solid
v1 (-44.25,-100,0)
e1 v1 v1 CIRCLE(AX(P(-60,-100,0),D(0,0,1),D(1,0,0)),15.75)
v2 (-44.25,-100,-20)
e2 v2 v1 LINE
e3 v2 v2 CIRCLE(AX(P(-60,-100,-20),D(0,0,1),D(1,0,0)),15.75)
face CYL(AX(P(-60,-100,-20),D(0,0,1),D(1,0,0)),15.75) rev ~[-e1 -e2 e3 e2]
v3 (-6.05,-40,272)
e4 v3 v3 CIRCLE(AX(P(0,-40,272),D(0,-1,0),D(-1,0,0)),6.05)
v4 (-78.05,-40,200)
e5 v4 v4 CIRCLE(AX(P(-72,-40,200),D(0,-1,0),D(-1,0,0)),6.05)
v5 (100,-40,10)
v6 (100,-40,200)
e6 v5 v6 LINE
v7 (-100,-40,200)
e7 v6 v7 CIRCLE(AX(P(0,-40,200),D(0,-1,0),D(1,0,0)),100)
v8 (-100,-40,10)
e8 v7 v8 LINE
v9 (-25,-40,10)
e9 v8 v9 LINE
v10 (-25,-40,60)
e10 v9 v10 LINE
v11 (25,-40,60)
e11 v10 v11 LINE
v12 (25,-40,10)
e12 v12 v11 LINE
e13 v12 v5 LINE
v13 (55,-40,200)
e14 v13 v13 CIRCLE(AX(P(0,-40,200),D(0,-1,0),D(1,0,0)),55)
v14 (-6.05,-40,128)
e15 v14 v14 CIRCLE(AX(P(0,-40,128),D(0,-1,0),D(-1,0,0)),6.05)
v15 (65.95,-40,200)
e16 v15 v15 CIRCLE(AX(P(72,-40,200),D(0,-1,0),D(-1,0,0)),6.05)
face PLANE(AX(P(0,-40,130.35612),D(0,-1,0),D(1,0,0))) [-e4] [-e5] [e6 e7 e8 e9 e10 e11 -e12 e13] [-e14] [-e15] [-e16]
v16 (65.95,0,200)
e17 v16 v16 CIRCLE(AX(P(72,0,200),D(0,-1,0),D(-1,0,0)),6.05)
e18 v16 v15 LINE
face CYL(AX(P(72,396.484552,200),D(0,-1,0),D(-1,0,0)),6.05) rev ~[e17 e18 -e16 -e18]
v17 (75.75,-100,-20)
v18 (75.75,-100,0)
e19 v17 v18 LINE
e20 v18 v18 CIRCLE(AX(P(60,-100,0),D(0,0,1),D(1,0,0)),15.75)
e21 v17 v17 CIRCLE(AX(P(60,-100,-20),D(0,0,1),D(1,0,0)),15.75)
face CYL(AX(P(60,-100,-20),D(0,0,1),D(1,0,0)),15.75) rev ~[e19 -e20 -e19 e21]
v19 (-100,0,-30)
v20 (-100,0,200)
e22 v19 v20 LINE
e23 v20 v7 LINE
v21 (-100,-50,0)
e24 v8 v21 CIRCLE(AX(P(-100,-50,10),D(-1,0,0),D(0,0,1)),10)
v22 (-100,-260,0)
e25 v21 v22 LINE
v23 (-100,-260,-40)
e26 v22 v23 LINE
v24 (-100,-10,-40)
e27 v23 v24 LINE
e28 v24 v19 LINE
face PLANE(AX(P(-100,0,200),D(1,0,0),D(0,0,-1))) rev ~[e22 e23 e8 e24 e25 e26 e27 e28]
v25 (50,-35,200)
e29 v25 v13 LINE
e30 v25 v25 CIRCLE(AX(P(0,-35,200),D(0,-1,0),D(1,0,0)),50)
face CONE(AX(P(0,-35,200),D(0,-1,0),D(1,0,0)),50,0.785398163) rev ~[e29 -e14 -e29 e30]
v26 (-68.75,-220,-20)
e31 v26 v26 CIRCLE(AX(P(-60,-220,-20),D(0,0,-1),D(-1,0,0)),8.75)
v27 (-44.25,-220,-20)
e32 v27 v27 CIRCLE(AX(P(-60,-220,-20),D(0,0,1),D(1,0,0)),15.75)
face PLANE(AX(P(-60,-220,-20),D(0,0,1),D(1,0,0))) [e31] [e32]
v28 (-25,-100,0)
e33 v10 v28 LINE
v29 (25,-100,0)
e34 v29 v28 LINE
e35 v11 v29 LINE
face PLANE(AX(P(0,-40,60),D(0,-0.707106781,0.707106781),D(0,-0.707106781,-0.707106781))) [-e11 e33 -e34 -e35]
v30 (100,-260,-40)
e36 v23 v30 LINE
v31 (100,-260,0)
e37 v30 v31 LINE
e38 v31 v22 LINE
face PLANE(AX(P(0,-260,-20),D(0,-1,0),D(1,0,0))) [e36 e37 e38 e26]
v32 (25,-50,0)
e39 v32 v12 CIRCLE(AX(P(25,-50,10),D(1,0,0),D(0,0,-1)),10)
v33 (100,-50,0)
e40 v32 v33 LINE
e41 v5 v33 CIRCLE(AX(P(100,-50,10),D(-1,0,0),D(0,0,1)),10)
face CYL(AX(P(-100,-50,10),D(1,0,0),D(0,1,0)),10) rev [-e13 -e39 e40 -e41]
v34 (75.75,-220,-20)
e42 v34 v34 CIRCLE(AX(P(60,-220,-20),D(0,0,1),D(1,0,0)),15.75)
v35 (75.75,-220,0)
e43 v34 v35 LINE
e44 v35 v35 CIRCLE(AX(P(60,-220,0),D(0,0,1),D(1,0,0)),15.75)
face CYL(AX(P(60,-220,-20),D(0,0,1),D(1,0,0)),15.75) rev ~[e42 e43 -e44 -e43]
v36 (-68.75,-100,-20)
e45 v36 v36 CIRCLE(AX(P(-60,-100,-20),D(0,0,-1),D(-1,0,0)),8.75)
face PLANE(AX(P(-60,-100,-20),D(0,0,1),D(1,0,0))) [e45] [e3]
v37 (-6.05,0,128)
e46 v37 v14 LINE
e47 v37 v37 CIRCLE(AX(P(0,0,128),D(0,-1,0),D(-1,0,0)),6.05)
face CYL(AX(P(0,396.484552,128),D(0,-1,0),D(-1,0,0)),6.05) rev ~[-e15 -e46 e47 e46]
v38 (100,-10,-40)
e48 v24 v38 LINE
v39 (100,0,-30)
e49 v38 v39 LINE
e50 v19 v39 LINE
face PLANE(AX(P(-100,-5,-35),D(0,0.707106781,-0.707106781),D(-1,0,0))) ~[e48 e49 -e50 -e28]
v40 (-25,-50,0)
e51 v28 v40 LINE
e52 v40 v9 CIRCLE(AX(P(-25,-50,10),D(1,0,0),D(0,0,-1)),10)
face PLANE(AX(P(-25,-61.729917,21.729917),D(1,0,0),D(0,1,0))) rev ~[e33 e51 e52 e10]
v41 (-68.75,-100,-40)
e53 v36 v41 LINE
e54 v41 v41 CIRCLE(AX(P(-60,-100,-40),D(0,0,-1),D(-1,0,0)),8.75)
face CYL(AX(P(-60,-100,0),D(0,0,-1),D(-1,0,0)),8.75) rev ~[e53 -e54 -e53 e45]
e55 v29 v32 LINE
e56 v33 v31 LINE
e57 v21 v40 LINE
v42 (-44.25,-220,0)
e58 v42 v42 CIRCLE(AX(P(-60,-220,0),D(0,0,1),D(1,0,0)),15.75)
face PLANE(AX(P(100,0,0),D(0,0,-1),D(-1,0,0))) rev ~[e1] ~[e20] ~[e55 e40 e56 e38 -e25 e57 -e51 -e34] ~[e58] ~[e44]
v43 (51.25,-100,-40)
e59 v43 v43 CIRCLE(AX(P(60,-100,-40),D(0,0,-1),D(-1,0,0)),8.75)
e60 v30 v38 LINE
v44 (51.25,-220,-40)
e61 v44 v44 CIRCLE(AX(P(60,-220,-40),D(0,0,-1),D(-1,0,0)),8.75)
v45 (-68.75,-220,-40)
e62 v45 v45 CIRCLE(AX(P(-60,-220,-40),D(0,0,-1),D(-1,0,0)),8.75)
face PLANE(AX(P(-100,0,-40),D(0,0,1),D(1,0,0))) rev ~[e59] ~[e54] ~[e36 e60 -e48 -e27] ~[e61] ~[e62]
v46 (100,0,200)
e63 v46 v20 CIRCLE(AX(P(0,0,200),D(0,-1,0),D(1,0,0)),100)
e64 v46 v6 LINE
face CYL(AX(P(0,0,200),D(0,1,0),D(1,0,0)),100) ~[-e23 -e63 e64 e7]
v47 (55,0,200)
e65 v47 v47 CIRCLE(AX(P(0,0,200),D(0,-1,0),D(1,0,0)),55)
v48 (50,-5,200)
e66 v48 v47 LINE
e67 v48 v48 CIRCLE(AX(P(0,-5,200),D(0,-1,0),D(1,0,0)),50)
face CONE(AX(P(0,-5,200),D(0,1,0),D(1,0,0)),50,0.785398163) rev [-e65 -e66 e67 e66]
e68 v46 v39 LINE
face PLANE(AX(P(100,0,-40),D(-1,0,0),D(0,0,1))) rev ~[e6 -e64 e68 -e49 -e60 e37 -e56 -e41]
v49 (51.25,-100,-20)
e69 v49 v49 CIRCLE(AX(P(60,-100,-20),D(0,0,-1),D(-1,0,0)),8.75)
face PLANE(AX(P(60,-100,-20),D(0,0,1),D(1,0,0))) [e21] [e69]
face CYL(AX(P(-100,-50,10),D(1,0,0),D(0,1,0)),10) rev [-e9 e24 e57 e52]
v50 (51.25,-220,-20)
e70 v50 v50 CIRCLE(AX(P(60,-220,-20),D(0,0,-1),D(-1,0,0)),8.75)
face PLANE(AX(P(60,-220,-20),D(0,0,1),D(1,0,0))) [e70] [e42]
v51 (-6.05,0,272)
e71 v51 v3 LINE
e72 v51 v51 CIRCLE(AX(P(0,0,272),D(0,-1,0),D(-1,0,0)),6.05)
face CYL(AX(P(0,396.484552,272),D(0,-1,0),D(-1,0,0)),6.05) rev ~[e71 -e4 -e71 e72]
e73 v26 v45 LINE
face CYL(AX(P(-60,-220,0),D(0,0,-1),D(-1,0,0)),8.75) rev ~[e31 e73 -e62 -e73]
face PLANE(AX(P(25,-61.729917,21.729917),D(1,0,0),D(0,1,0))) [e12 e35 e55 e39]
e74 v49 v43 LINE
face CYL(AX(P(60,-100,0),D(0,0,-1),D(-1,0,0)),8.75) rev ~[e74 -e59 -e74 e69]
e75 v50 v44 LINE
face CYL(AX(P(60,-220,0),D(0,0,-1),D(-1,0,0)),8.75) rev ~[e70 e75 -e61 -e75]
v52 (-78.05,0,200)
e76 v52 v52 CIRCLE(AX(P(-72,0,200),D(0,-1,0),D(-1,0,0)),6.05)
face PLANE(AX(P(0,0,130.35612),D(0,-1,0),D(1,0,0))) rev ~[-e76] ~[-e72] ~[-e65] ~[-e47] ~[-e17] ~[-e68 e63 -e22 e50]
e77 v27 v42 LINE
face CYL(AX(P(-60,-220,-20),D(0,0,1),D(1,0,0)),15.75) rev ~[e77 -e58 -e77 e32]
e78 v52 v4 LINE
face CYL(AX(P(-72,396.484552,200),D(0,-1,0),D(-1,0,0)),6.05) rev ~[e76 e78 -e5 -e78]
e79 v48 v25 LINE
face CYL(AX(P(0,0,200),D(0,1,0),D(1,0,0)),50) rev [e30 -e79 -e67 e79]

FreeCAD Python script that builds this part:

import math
import FreeCAD as App
import Part
import Sketcher
from FreeCAD import Vector
Q = App.Units.Quantity


def edges_at(feature, points):
    """Names of the edges that pass closest to the given points."""
    edges = feature.Shape.Edges
    near = lambda p: min(range(len(edges)), key=lambda i: edges[i].distToShape(Part.Vertex(*p))[0])
    return sorted({f"Edge{near(p) + 1}" for p in points})


def add_polygon(sketch, points):
    """Adds a closed chain of lines whose ends are joined by coincident constraints."""
    first, n = sketch.GeometryCount, len(points)
    for a, b in zip(points, points[1:] + points[:1]):
        sketch.addGeometry(Part.LineSegment(App.Vector(*a, 0), App.Vector(*b, 0)), False)
    for i in range(n):
        sketch.addConstraint(Sketcher.Constraint("Coincident", first + i, 2, first + (i + 1) % n, 1))

doc = App.newDocument("Part")
body = doc.addObject("PartDesign::Body", "Body")

# Sketch on XZ plane
sketch1 = body.newObject("Sketcher::SketchObject", "Sketch")
sketch1.AttachmentSupport = (doc.getObject("XZ_Plane"), [""])
sketch1.MapMode = "FlatFace"
sketch1.addGeometry(Part.LineSegment(Vector(-100, 200, 0), Vector(-100, -40, 0)), False)
sketch1.addGeometry(Part.LineSegment(Vector(-100, -40, 0), Vector(100, -40, 0)), False)
sketch1.addGeometry(Part.LineSegment(Vector(100, -40, 0), Vector(100, 200, 0)), False)
sketch1.addGeometry(Part.ArcOfCircle(Part.Circle(Vector(0, 200, 0), Vector(0, 0, 1), 100), math.radians(0), math.radians(180)), False)
sketch1.addGeometry(Part.Circle(Vector(0, 200, 0), Vector(0, 0, 1), 50), False)
sketch1.addConstraint(Sketcher.Constraint("Coincident", 0, 2, 1, 1))
sketch1.addConstraint(Sketcher.Constraint("Coincident", 1, 2, 2, 1))
sketch1.addConstraint(Sketcher.Constraint("Tangent", 2, 2, 3, 1))
sketch1.addConstraint(Sketcher.Constraint("Tangent", 3, 2, 0, 1))
sketch1.addConstraint(Sketcher.Constraint("Vertical", 0))
sketch1.addConstraint(Sketcher.Constraint("Horizontal", 1))
sketch1.addConstraint(Sketcher.Constraint("Vertical", 2))
sketch1.addConstraint(Sketcher.Constraint("Coincident", 4, 3, 3, 3))
sketch1.addConstraint(Sketcher.Constraint("PointOnObject", 3, 3, -2))
sketch1.addConstraint(Sketcher.Constraint("Diameter", 4, Q("100 mm")))
sketch1.addConstraint(Sketcher.Constraint("Radius", 3, Q("100 mm")))
sketch1.addConstraint(Sketcher.Constraint("DistanceY", 0, 2, 0, 1, Q("240 mm")))
sketch1.addConstraint(Sketcher.Constraint("DistanceY", -1, 1, 3, 3, Q("200 mm")))
pad1 = body.newObject("PartDesign::Pad", "Pad")
pad1.Profile = sketch1
pad1.Length = 40
doc.recompute()

chamfer = body.newObject("PartDesign::Chamfer", "Chamfer")
chamfer.Base = (pad1, edges_at(pad1, [(50, -20, 200), (-50, 0, 200), (-50, -40, 200)]))
chamfer.Size = 5

# Sketch on XZ plane
sketch2 = body.newObject("Sketcher::SketchObject", "Sketch001")
sketch2.AttachmentSupport = (doc.getObject("XZ_Plane"), [""])
sketch2.MapMode = "FlatFace"
sketch2.addGeometry(Part.Circle(Vector(0, 272, 0), Vector(0, 0, 1), 6), False)
sketch2.addGeometry(Part.Circle(Vector(72, 200, 0), Vector(0, 0, 1), 6), False)
sketch2.addGeometry(Part.Circle(Vector(0, 128, 0), Vector(0, 0, 1), 6), False)
sketch2.addGeometry(Part.Circle(Vector(-72, 200, 0), Vector(0, 0, 1), 6), False)
sketch2.addConstraint(Sketcher.Constraint("Equal", 0, 1))
sketch2.addConstraint(Sketcher.Constraint("Equal", 1, 2))
sketch2.addConstraint(Sketcher.Constraint("Equal", 2, 3))
sketch2.addConstraint(Sketcher.Constraint("Symmetric", 1, 3, 3, 3, -2))
sketch2.addConstraint(Sketcher.Constraint("PointOnObject", 0, 3, -2))
sketch2.addConstraint(Sketcher.Constraint("PointOnObject", 2, 3, -2))
sketch2.addConstraint(Sketcher.Constraint("Diameter", 0, Q("12.1 mm")))
sketch2.addConstraint(Sketcher.Constraint("DistanceY", -1, 1, 0, 3, Q("272 mm")))
sketch2.addConstraint(Sketcher.Constraint("DistanceX", -1, 1, 1, 3, Q("72 mm")))
sketch2.addConstraint(Sketcher.Constraint("DistanceY", -1, 1, 1, 3, Q("200 mm")))
sketch2.addConstraint(Sketcher.Constraint("DistanceY", -1, 1, 2, 3, Q("128 mm")))
doc.recompute()
hole = body.newObject("PartDesign::Hole", "Hole")
hole.Profile = sketch2
hole.ThreadType = "None"
hole.Diameter = 12.1
hole.DepthType = "ThroughAll"
hole.Reversed = True

# Sketch on XZ plane
sketch3 = body.newObject("Sketcher::SketchObject", "Sketch002")
sketch3.AttachmentSupport = (doc.getObject("XZ_Plane"), [""])
sketch3.MapMode = "FlatFace"
add_polygon(sketch3, [(100, 0), (-100, 0), (-100, -40), (100, -40)])  # lines 0-3
sketch3.addConstraint(Sketcher.Constraint("Horizontal", 0))
sketch3.addConstraint(Sketcher.Constraint("Vertical", 1))
sketch3.addConstraint(Sketcher.Constraint("Horizontal", 2))
sketch3.addConstraint(Sketcher.Constraint("Vertical", 3))
sketch3.addConstraint(Sketcher.Constraint("Symmetric", 0, 2, 3, 2, -1, 1))
sketch3.addConstraint(Sketcher.Constraint("DistanceX", 0, 2, 0, 1, Q("200 mm")))
sketch3.addConstraint(Sketcher.Constraint("DistanceY", 1, 2, 1, 1, Q("40 mm")))
pad2 = body.newObject("PartDesign::Pad", "Pad001")
pad2.Profile = sketch3
pad2.Length = 260
doc.recompute()

fillet = body.newObject("PartDesign::Fillet", "Fillet")
fillet.Base = (pad2, edges_at(pad2, [(0, -40, 0)]))
fillet.Radius = 10
doc.recompute()

chamfer2 = body.newObject("PartDesign::Chamfer", "Chamfer001")
chamfer2.Base = (fillet, edges_at(fillet, [(0, 0, -40)]))
chamfer2.Size = 10

# Sketch on YZ plane
sketch4 = body.newObject("Sketcher::SketchObject", "Sketch003")
sketch4.AttachmentSupport = (doc.getObject("YZ_Plane"), [""])
sketch4.MapMode = "FlatFace"
sketch4.addGeometry(Part.ArcOfCircle(Part.Circle(Vector(-50, 10, 0), Vector(0, 0, 1), 10), math.radians(-90), math.radians(0)), False)
sketch4.addGeometry(Part.LineSegment(Vector(-40, 10, 0), Vector(-40, 60, 0)), False)
sketch4.addGeometry(Part.LineSegment(Vector(-40, 60, 0), Vector(-100, 0, 0)), False)
sketch4.addGeometry(Part.LineSegment(Vector(-100, 0, 0), Vector(-50, 0, 0)), False)
sketch4.addConstraint(Sketcher.Constraint("Tangent", 0, 2, 1, 1))
sketch4.addConstraint(Sketcher.Constraint("Coincident", 1, 2, 2, 1))
sketch4.addConstraint(Sketcher.Constraint("Coincident", 2, 2, 3, 1))
sketch4.addConstraint(Sketcher.Constraint("Tangent", 3, 2, 0, 1))
sketch4.addConstraint(Sketcher.Constraint("Vertical", 1))
sketch4.addConstraint(Sketcher.Constraint("Horizontal", 3))
sketch4.addConstraint(Sketcher.Constraint("PointOnObject", 2, 2, -1))
sketch4.addConstraint(Sketcher.Constraint("Equal", 3, 1))
sketch4.addConstraint(Sketcher.Constraint("Radius", 0, Q("10 mm")))
sketch4.addConstraint(Sketcher.Constraint("DistanceX", 3, 1, 3, 2, Q("50 mm")))
sketch4.addConstraint(Sketcher.Constraint("DistanceX", 0, 3, -1, 1, Q("50 mm")))
pad3 = body.newObject("PartDesign::Pad", "Pad002")
pad3.Profile = sketch4
pad3.Length = 50
pad3.Midplane = True

# Sketch on XY plane
sketch5 = body.newObject("Sketcher::SketchObject", "Sketch004")
sketch5.AttachmentSupport = (doc.getObject("XY_Plane"), [""])
sketch5.MapMode = "FlatFace"
sketch5.addGeometry(Part.Circle(Vector(-60, -100, 0), Vector(0, 0, 1), 9), False)
sketch5.addGeometry(Part.Circle(Vector(60, -100, 0), Vector(0, 0, 1), 9), False)
sketch5.addGeometry(Part.Circle(Vector(60, -220, 0), Vector(0, 0, 1), 9), False)
sketch5.addGeometry(Part.Circle(Vector(-60, -220, 0), Vector(0, 0, 1), 9), False)
sketch5.addConstraint(Sketcher.Constraint("Equal", 0, 1))
sketch5.addConstraint(Sketcher.Constraint("Equal", 1, 2))
sketch5.addConstraint(Sketcher.Constraint("Equal", 2, 3))
sketch5.addConstraint(Sketcher.Constraint("Symmetric", 0, 3, 1, 3, -2))
sketch5.addConstraint(Sketcher.Constraint("Symmetric", 2, 3, 3, 3, -2))
sketch5.addConstraint(Sketcher.Constraint("Vertical", 1, 3, 2, 3))
sketch5.addConstraint(Sketcher.Constraint("Diameter", 0, Q("17.5 mm")))
sketch5.addConstraint(Sketcher.Constraint("DistanceX", 0, 3, -1, 1, Q("60 mm")))
sketch5.addConstraint(Sketcher.Constraint("DistanceY", 0, 3, -1, 1, Q("100 mm")))
sketch5.addConstraint(Sketcher.Constraint("DistanceY", 2, 3, -1, 1, Q("220 mm")))
doc.recompute()
hole2 = body.newObject("PartDesign::Hole", "Hole001")
hole2.Profile = sketch5
hole2.ThreadType = "None"
hole2.Diameter = 17.5
hole2.DepthType = "ThroughAll"
hole2.HoleCutType = "Counterbore"
hole2.HoleCutDiameter = 31.5
hole2.HoleCutDepth = 20

doc.recompute()
